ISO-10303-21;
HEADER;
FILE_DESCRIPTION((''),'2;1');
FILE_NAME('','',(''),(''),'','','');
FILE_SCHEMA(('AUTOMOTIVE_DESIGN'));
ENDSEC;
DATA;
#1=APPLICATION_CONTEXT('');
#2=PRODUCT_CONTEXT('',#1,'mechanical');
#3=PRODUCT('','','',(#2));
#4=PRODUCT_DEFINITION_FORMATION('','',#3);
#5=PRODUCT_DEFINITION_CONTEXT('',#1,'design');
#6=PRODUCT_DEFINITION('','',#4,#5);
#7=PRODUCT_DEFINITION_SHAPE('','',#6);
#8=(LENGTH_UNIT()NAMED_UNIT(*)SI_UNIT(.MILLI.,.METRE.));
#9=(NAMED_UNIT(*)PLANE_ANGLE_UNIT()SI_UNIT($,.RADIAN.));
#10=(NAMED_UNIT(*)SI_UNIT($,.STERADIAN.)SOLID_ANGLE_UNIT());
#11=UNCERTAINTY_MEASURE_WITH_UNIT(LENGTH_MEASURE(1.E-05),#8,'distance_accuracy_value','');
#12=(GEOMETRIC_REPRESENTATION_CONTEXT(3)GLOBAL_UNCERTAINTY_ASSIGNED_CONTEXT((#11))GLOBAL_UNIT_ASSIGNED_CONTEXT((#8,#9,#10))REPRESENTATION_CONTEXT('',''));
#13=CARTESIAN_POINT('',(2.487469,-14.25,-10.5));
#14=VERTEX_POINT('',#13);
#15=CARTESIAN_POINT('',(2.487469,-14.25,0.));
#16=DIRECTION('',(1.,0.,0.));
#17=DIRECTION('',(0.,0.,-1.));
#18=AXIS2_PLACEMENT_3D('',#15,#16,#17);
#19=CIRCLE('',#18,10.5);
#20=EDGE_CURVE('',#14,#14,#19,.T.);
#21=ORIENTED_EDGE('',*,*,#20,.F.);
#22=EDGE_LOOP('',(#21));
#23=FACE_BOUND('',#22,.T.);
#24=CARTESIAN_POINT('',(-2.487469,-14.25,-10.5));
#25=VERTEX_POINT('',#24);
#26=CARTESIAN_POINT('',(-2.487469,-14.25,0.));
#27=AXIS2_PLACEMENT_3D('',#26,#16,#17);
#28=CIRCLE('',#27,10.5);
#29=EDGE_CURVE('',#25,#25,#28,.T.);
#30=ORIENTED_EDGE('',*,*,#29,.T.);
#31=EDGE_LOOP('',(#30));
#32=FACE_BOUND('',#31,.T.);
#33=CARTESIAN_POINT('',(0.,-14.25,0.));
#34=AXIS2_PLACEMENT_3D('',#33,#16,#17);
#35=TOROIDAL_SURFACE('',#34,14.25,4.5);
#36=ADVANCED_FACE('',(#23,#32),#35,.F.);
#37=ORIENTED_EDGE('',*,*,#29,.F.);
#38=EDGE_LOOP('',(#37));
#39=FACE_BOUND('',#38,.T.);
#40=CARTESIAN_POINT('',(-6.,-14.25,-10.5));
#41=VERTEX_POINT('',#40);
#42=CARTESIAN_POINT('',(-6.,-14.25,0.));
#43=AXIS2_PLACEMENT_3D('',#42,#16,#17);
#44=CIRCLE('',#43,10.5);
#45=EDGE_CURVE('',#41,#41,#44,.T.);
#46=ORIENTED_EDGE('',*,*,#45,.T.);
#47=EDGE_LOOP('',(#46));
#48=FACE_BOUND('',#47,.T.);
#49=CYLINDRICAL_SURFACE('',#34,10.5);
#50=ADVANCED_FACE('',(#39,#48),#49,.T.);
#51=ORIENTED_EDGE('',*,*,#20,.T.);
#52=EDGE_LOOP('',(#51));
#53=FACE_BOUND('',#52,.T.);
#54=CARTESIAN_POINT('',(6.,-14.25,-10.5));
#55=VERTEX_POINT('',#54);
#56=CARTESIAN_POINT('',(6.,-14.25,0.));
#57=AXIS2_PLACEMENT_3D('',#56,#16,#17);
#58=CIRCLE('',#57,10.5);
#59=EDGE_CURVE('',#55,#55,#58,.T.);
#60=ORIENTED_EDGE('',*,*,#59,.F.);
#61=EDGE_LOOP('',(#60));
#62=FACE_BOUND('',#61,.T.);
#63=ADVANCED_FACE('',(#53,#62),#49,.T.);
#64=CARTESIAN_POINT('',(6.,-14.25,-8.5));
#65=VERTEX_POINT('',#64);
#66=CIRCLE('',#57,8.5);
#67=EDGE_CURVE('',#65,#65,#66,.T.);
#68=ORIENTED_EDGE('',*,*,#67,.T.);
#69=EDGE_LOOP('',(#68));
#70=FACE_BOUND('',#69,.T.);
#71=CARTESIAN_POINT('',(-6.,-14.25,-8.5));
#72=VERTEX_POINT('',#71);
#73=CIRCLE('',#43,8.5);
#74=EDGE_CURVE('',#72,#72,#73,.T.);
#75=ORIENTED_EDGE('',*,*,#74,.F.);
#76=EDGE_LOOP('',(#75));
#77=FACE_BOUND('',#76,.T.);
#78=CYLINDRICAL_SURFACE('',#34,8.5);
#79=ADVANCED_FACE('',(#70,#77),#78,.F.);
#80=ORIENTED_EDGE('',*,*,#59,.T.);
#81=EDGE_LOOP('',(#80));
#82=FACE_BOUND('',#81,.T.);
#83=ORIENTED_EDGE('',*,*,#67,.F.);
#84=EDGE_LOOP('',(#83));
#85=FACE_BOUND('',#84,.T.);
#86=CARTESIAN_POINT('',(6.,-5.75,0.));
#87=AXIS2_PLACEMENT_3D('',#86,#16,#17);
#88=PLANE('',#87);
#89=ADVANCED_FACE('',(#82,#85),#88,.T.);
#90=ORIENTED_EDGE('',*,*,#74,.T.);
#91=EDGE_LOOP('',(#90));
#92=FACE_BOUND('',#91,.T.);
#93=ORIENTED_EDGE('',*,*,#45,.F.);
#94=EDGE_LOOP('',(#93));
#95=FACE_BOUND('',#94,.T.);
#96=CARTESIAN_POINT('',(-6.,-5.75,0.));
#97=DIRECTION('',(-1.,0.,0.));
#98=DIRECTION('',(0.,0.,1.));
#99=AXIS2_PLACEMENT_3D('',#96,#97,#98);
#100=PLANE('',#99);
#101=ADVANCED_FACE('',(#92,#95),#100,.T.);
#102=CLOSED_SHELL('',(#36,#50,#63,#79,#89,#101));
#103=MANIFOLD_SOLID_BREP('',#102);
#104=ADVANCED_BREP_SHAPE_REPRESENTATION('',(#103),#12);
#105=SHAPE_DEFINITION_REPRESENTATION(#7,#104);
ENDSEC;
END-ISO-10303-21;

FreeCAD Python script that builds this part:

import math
import FreeCAD as App
import Part
import Sketcher

V = App.Vector

doc = App.newDocument("Part")
body = doc.addObject("PartDesign::Body", "Body")

sketch1 = doc.addObject("Sketcher::SketchObject", "Sketch")
body.addObject(sketch1)
sketch1.AttachmentSupport = (doc.XY_Plane, [""])
sketch1.MapMode = "FlatFace"
sketch1.addGeometry(Part.LineSegment(V(-6, -5.8, 0), V(6, -5.8, 0)), False)
sketch1.addGeometry(Part.LineSegment(V(6, -5.8, 0), V(6, -3.8, 0)), False)
sketch1.addGeometry(Part.LineSegment(V(6, -3.8, 0), V(2.5, -3.8, 0)), False)
sketch1.addGeometry(Part.ArcOfCircle(Part.Circle(V(0, 0, 0), V(0, 0, 1), 4.5), math.radians(-124), math.radians(-56)), False)
sketch1.addGeometry(Part.LineSegment(V(-2.5, -3.8, 0), V(-6, -3.8, 0)), False)
sketch1.addGeometry(Part.LineSegment(V(-6, -3.8, 0), V(-6, -5.8, 0)), False)
sketch1.addGeometry(Part.LineSegment(V(6, -14.2, 0), V(-6, -14.2, 0)), True)
sketch1.addConstraint(Sketcher.Constraint("Coincident", 0, 2, 1, 1))
sketch1.addConstraint(Sketcher.Constraint("Coincident", 1, 2, 2, 1))
sketch1.addConstraint(Sketcher.Constraint("Coincident", 2, 2, 3, 2))
sketch1.addConstraint(Sketcher.Constraint("Coincident", 3, 1, 4, 1))
sketch1.addConstraint(Sketcher.Constraint("Coincident", 4, 2, 5, 1))
sketch1.addConstraint(Sketcher.Constraint("Coincident", 5, 2, 0, 1))
sketch1.addConstraint(Sketcher.Constraint("Horizontal", 0))
sketch1.addConstraint(Sketcher.Constraint("Vertical", 1))
sketch1.addConstraint(Sketcher.Constraint("Horizontal", 2))
sketch1.addConstraint(Sketcher.Constraint("Horizontal", 4))
sketch1.addConstraint(Sketcher.Constraint("Vertical", 5))
sketch1.addConstraint(Sketcher.Constraint("Horizontal", 6))
sketch1.addConstraint(Sketcher.Constraint("Coincident", 3, 3, -1, 1))
sketch1.addConstraint(Sketcher.Constraint("Symmetric", 1, 2, 4, 2, -2))
sketch1.addConstraint(Sketcher.Constraint("Vertical", 1, 2, 6, 1))
sketch1.addConstraint(Sketcher.Constraint("Vertical", 5, 2, 6, 2))
sketch1.addConstraint(Sketcher.Constraint("Radius", 3, 4.5))
sketch1.addConstraint(Sketcher.Constraint("DistanceX", 0, 1, 0, 2, 12.0))
sketch1.addConstraint(Sketcher.Constraint("DistanceY", 1, 1, 1, 2, 2.0))
sketch1.addConstraint(Sketcher.Constraint("DistanceY", 6, 1, 0, 2, 8.5))
sketch1.addConstraint(Sketcher.Constraint("DistanceY", 0, 2, -1, 1, 5.75))
revolution = doc.addObject("PartDesign::Revolution", "Revolution")
body.addObject(revolution)
revolution.Profile = sketch1
revolution.ReferenceAxis = (sketch1, ["Axis0"])
revolution.Angle = 360

doc.recompute()
